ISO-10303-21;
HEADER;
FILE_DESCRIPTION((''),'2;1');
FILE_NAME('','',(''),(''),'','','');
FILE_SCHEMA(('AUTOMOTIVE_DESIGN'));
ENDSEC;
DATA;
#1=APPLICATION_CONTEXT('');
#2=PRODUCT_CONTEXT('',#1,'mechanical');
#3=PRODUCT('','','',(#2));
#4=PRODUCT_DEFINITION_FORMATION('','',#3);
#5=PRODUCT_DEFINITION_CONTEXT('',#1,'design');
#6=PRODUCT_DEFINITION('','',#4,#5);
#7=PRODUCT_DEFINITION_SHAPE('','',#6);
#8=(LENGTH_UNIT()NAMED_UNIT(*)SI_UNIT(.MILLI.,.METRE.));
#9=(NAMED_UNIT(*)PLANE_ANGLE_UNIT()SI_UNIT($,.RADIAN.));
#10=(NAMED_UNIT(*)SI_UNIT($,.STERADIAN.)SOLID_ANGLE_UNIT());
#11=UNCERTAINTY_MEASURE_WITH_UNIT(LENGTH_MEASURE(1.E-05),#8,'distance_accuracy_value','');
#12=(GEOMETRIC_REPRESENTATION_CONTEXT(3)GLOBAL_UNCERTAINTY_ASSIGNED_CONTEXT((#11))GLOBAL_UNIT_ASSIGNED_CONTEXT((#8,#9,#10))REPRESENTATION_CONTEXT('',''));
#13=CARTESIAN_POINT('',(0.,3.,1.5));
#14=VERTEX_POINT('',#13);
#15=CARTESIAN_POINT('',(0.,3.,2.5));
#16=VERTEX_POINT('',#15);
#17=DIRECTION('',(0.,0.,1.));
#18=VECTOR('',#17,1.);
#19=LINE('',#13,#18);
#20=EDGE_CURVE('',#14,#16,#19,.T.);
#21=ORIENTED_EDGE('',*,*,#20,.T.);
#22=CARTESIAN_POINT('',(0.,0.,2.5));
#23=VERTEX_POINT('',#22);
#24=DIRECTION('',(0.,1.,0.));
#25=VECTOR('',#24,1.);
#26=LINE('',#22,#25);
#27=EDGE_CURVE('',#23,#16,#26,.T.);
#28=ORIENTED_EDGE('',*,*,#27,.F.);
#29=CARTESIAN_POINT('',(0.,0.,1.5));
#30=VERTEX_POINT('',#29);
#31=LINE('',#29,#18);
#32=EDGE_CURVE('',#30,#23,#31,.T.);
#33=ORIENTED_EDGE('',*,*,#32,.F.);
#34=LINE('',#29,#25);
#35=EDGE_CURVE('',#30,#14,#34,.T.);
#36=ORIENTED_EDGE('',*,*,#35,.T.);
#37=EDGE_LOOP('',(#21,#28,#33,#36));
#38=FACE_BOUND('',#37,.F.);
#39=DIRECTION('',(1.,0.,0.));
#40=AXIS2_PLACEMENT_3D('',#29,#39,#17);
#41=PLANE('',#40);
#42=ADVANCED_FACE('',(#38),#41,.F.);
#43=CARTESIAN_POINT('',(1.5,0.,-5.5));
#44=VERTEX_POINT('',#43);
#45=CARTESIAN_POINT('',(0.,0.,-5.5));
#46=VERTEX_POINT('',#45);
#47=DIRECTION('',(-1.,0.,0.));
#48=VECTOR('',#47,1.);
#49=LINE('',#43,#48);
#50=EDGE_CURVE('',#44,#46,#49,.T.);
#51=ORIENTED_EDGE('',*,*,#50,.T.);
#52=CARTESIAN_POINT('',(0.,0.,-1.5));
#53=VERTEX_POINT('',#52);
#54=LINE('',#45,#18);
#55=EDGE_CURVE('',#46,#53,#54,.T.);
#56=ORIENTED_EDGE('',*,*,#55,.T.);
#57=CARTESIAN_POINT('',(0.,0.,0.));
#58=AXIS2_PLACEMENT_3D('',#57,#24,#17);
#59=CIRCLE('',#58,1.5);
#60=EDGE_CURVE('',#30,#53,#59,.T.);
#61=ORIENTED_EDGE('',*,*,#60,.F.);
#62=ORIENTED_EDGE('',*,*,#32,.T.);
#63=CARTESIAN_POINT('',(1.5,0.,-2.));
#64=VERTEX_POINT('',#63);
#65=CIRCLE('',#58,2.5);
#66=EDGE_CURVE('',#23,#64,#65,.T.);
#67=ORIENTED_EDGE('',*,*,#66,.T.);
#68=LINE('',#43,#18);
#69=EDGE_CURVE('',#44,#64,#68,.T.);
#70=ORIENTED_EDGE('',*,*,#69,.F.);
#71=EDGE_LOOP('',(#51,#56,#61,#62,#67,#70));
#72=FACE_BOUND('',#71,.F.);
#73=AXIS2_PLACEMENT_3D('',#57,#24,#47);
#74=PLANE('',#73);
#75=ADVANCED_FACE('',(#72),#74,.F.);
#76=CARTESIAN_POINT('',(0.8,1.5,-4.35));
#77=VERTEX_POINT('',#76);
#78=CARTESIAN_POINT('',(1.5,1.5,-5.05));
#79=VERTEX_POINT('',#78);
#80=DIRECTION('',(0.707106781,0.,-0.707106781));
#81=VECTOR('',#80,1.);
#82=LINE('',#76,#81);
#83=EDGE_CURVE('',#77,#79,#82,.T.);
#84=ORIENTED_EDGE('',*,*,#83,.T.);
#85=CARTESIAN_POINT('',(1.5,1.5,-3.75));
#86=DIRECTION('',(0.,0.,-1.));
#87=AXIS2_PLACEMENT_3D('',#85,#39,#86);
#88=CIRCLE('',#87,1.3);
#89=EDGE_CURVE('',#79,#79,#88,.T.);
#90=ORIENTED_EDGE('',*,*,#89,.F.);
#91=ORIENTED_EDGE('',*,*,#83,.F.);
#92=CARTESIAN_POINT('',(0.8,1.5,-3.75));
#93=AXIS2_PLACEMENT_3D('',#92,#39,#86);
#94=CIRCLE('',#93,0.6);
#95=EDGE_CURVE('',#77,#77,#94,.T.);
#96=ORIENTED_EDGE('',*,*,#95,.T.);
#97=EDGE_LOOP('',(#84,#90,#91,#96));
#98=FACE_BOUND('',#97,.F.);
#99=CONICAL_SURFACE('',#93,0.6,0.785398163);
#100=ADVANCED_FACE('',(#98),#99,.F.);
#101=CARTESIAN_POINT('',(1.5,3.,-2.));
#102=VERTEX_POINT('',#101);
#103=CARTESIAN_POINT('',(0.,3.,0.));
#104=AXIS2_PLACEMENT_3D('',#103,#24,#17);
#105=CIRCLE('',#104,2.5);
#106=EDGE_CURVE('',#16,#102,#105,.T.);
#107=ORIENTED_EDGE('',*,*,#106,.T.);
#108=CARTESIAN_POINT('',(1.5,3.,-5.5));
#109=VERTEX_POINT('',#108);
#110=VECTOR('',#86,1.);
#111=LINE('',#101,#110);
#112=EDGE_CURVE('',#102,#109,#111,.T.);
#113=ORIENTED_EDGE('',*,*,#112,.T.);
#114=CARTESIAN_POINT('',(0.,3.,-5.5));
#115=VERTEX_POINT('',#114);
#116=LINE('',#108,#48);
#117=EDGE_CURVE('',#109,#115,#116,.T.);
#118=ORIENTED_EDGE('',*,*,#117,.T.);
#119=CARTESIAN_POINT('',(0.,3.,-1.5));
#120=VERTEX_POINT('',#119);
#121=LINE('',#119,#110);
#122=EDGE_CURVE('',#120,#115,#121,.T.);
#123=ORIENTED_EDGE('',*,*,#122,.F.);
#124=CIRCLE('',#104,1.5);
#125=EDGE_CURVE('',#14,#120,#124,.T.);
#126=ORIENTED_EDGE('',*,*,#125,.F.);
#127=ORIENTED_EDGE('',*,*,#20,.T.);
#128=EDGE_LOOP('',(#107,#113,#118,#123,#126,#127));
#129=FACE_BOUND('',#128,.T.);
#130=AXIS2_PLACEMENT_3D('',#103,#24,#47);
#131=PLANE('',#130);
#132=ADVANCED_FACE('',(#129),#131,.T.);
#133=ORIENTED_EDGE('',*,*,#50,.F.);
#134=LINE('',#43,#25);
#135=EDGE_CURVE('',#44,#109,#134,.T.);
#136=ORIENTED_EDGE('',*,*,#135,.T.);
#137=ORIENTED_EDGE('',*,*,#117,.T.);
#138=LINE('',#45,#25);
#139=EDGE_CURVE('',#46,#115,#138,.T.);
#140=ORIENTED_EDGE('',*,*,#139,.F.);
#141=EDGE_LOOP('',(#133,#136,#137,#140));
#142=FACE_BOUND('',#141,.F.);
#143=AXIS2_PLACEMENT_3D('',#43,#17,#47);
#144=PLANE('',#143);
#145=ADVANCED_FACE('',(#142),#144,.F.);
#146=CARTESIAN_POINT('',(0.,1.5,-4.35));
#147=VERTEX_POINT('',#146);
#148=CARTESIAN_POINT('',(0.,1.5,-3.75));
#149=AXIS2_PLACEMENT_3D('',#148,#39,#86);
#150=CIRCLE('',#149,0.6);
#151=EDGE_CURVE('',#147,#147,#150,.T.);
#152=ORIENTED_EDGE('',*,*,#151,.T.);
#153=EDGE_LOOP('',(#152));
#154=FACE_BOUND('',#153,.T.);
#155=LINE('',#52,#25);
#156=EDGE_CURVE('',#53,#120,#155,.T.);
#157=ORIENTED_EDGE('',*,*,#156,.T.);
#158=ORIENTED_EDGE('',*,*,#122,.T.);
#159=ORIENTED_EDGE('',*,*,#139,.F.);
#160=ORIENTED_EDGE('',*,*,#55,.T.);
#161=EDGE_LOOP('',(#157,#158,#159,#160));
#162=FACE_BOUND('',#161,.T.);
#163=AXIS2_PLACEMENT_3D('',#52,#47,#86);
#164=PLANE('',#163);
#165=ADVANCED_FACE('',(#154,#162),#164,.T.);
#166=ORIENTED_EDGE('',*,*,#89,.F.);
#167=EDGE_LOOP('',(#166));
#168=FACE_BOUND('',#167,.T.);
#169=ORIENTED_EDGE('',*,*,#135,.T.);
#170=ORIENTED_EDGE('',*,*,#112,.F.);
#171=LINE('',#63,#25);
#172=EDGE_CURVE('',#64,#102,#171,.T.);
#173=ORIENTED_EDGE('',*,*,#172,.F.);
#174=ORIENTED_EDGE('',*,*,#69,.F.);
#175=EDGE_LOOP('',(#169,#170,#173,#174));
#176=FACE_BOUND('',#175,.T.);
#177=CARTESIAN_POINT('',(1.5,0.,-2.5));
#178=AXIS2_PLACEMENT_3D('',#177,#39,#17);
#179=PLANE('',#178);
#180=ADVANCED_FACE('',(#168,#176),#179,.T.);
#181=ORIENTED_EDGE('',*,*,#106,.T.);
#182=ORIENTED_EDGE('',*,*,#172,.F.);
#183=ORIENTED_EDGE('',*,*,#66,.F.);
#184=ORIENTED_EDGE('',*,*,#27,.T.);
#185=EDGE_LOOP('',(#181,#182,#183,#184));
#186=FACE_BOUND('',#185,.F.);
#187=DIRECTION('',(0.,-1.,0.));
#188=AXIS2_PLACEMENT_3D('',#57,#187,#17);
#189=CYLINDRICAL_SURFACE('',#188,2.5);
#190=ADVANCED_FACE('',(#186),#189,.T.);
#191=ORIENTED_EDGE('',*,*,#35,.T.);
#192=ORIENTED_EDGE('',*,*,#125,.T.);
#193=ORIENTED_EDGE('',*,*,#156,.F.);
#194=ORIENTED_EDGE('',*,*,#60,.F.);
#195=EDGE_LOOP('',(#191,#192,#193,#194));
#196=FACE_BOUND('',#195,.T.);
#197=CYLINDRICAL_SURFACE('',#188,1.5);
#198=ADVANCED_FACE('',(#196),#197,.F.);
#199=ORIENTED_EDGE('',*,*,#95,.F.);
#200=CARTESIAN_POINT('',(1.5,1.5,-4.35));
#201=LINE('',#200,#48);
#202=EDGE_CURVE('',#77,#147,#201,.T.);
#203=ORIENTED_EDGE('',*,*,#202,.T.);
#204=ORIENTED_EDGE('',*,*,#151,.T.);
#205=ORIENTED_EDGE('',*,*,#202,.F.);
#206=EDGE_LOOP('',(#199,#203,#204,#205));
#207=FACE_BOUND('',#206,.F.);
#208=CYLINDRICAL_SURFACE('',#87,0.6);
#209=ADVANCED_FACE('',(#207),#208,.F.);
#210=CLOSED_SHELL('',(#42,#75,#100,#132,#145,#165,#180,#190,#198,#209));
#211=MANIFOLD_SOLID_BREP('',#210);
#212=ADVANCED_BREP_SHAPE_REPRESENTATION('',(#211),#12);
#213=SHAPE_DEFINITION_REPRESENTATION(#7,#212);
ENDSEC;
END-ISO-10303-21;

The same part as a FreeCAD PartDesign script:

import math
import FreeCAD as App
import Part
import Sketcher


def edges_at(feature, points):
    """Names of the edges that pass closest to the given points."""
    edges = feature.Shape.Edges
    near = lambda p: min(range(len(edges)), key=lambda i: edges[i].distToShape(Part.Vertex(*p))[0])
    return sorted({f"Edge{near(p) + 1}" for p in points})

doc = App.newDocument("Part")
body = doc.addObject("PartDesign::Body", "Body")

sketch1 = body.newObject("Sketcher::SketchObject", "Sketch")
sketch1.AttachmentSupport = (doc.getObject("XZ_Plane"), [""])
sketch1.MapMode = "FlatFace"
sketch1.addGeometry(Part.ArcOfCircle(Part.Circle(App.Vector(0, 0, 0), App.Vector(0, 0, 1), 1.5), math.radians(-90), math.radians(90)), False)
sketch1.addGeometry(Part.LineSegment(App.Vector(0, 1.5, 0), App.Vector(0, 2.5, 0)), False)
sketch1.addGeometry(Part.ArcOfCircle(Part.Circle(App.Vector(0, 0, 0), App.Vector(0, 0, 1), 2.5), math.radians(-53.130102), math.radians(90)), False)
sketch1.addGeometry(Part.LineSegment(App.Vector(1.5, -2, 0), App.Vector(1.5, -5.5, 0)), False)
sketch1.addGeometry(Part.LineSegment(App.Vector(1.5, -5.5, 0), App.Vector(0, -5.5, 0)), False)
sketch1.addGeometry(Part.LineSegment(App.Vector(0, -5.5, 0), App.Vector(0, -1.5, 0)), False)
sketch1.addConstraint(Sketcher.Constraint("Coincident", 0, 2, 1, 1))
sketch1.addConstraint(Sketcher.Constraint("Coincident", 1, 2, 2, 2))
sketch1.addConstraint(Sketcher.Constraint("Coincident", 2, 1, 3, 1))
sketch1.addConstraint(Sketcher.Constraint("Coincident", 3, 2, 4, 1))
sketch1.addConstraint(Sketcher.Constraint("Coincident", 4, 2, 5, 1))
sketch1.addConstraint(Sketcher.Constraint("Coincident", 5, 2, 0, 1))
sketch1.addConstraint(Sketcher.Constraint("Vertical", 1))
sketch1.addConstraint(Sketcher.Constraint("Vertical", 3))
sketch1.addConstraint(Sketcher.Constraint("Horizontal", 4))
sketch1.addConstraint(Sketcher.Constraint("Vertical", 5))
sketch1.addConstraint(Sketcher.Constraint("Coincident", 0, 3, -1, 1))
sketch1.addConstraint(Sketcher.Constraint("Coincident", 2, 3, -1, 1))
sketch1.addConstraint(Sketcher.Constraint("PointOnObject", 0, 2, -2))
sketch1.addConstraint(Sketcher.Constraint("PointOnObject", 4, 2, -2))
sketch1.addConstraint(Sketcher.Constraint("Radius", 0, 1.5))
sketch1.addConstraint(Sketcher.Constraint("DistanceY", 1, 1, 1, 2, 1.0))
sketch1.addConstraint(Sketcher.Constraint("DistanceX", 4, 2, 4, 1, 1.5))
sketch1.addConstraint(Sketcher.Constraint("DistanceY", 5, 1, 5, 2, 4.0))
pad1 = body.newObject("PartDesign::Pad", "Pad")
pad1.Profile = sketch1
pad1.Length = 3
pad1.Reversed = True

sketch2 = body.newObject("Sketcher::SketchObject", "Sketch001")
sketch2.AttachmentSupport = (doc.getObject("YZ_Plane"), [""])
sketch2.MapMode = "FlatFace"
sketch2.AttachmentOffset = App.Placement(App.Vector(0, 0, 1.5), App.Rotation())
sketch2.addGeometry(Part.Circle(App.Vector(1.5, -3.75, 0), App.Vector(0, 0, 1), 0.6), False)
sketch2.addConstraint(Sketcher.Constraint("Diameter", 0, 1.2))
sketch2.addConstraint(Sketcher.Constraint("DistanceX", -1, 1, 0, 3, 1.5))
sketch2.addConstraint(Sketcher.Constraint("DistanceY", 0, 3, -1, 1, 3.75))
pocket1 = body.newObject("PartDesign::Pocket", "Pocket")
pocket1.Profile = sketch2
pocket1.Length = 3
doc.recompute()

chamfer = body.newObject("PartDesign::Chamfer", "Chamfer")
chamfer.Base = (pocket1, edges_at(pocket1, [(1.5, 1.5, -3.15)]))
chamfer.Size = 0.7

doc.recompute()
